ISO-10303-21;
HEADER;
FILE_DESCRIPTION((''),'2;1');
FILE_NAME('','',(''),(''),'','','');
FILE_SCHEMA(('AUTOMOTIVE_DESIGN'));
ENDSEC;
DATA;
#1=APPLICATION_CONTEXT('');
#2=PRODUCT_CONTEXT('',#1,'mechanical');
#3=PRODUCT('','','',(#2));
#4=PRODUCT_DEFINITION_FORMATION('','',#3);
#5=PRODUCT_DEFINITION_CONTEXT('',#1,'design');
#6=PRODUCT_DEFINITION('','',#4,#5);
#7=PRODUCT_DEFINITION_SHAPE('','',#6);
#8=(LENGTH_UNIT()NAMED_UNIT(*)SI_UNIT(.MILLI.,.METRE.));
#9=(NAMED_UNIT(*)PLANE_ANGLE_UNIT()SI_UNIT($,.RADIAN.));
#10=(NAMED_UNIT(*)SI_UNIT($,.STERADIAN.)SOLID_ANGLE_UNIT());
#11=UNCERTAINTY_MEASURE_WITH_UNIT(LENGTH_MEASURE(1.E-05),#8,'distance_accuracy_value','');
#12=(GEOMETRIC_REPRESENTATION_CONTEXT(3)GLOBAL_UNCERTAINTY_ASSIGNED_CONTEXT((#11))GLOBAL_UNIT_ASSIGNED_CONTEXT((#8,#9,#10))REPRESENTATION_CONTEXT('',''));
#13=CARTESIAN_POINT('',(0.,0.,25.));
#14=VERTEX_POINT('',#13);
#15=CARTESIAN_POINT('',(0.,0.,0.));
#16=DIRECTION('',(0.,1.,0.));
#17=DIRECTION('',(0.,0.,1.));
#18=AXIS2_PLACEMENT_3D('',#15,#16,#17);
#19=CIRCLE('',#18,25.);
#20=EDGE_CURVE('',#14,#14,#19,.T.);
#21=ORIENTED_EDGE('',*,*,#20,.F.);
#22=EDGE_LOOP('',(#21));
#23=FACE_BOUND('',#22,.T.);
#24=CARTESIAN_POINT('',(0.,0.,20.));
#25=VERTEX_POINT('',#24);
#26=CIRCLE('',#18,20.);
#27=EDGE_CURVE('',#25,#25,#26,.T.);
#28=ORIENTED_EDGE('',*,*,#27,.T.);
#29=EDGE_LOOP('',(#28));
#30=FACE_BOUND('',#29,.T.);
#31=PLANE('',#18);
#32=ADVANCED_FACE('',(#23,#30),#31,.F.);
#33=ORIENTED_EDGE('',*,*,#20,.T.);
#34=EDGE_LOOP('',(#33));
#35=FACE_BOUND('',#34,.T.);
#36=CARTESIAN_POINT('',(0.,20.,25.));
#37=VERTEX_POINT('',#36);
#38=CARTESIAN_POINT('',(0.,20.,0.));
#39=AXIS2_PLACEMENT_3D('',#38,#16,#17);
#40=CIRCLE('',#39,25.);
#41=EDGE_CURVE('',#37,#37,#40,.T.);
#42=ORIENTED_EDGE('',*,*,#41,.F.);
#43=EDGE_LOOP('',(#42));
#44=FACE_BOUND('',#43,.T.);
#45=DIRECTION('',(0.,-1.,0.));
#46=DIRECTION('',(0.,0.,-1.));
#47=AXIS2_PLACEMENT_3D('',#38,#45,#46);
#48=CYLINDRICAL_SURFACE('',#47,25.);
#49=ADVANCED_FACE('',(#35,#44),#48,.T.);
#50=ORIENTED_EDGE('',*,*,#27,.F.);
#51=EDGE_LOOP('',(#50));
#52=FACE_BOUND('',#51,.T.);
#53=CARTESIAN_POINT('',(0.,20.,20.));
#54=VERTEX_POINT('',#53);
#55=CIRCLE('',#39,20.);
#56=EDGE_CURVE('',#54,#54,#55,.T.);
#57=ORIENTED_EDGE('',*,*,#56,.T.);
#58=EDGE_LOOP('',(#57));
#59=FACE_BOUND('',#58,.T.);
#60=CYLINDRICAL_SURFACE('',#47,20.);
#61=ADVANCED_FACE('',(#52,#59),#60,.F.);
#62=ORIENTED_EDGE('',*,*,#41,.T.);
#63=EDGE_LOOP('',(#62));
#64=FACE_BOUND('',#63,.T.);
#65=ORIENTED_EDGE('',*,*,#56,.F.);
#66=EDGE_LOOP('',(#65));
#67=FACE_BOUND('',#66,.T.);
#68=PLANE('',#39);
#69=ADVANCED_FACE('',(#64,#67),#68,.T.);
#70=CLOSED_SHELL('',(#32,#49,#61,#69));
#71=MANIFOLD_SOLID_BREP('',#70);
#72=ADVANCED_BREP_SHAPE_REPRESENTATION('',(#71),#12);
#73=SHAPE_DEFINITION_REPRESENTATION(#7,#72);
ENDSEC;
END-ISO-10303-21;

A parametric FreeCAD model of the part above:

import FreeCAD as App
import Part
import Sketcher
from FreeCAD import Vector
Q = App.Units.Quantity

doc = App.newDocument("Part")
body = doc.addObject("PartDesign::Body", "Body")

sketch1 = body.newObject("Sketcher::SketchObject", "Sketch")
sketch1.AttachmentSupport = (doc.getObject("XZ_Plane"), [""])
sketch1.MapMode = "FlatFace"
sketch1.addGeometry(Part.Circle(Vector(0, 0, 0), Vector(0, 0, 1), 25), False)
sketch1.addGeometry(Part.Circle(Vector(0, 0, 0), Vector(0, 0, 1), 20), False)
sketch1.addConstraint(Sketcher.Constraint("Coincident", 0, 3, -1, 1))
sketch1.addConstraint(Sketcher.Constraint("Coincident", 1, 3, -1, 1))
sketch1.addConstraint(Sketcher.Constraint("Diameter", 0, Q("50 mm")))
sketch1.addConstraint(Sketcher.Constraint("Diameter", 1, Q("40 mm")))
pad1 = body.newObject("PartDesign::Pad", "Pad")
pad1.Profile = sketch1
pad1.Length = 20
pad1.Reversed = True

doc.recompute()
